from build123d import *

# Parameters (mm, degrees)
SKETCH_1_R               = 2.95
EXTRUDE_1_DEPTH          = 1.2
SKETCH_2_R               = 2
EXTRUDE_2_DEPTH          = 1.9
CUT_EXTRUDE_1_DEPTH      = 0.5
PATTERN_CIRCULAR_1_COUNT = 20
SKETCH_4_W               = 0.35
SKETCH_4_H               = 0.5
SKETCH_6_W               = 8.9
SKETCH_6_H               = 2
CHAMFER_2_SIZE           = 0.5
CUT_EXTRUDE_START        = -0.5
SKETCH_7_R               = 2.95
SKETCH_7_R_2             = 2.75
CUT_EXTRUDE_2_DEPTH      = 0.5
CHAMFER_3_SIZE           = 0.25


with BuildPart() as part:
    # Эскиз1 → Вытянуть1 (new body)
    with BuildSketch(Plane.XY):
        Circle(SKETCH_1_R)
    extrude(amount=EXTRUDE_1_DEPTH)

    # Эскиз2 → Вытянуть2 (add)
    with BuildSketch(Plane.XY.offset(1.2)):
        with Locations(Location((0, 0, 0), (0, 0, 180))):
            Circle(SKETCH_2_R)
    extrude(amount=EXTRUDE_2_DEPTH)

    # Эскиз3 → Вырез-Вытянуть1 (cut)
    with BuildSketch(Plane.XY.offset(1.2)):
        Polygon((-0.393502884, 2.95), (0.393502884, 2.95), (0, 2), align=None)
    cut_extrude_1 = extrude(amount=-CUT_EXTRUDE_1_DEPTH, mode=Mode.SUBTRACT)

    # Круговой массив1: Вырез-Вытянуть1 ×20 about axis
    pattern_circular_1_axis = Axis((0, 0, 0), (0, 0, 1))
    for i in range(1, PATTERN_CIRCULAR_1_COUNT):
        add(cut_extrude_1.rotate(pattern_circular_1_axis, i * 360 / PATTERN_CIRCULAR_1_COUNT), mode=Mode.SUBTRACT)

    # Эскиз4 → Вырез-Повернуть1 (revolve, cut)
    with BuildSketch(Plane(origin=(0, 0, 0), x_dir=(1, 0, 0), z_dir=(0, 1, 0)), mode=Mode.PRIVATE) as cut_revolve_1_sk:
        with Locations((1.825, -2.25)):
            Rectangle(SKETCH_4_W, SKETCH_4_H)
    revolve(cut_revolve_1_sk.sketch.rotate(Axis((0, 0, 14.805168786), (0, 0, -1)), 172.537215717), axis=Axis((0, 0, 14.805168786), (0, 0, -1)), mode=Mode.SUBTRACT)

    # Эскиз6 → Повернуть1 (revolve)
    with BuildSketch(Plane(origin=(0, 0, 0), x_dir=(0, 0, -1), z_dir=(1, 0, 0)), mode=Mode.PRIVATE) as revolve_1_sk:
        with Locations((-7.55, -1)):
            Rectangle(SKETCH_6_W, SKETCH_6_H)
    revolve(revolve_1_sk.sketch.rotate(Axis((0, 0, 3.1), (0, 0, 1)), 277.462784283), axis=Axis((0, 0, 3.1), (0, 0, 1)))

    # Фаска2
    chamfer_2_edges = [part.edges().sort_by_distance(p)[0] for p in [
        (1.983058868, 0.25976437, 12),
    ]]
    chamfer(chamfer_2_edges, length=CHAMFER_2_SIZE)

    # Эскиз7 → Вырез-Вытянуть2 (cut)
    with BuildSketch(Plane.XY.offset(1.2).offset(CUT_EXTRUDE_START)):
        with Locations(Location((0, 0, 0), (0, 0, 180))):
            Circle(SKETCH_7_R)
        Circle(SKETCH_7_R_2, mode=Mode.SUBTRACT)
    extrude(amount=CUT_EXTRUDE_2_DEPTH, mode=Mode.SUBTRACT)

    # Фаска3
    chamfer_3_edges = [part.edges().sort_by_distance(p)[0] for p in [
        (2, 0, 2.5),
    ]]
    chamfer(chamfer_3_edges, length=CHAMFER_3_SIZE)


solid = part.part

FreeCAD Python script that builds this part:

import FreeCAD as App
import Part
import Sketcher
from FreeCAD import Vector
Q = App.Units.Quantity


def edges_at(feature, points):
    """Names of the edges that pass closest to the given points."""
    edges = feature.Shape.Edges
    near = lambda p: min(range(len(edges)), key=lambda i: edges[i].distToShape(Part.Vertex(*p))[0])
    return sorted({f"Edge{near(p) + 1}" for p in points})


def add_polygon(sketch, points):
    """Adds a closed chain of lines whose ends are joined by coincident constraints."""
    first, n = sketch.GeometryCount, len(points)
    for a, b in zip(points, points[1:] + points[:1]):
        sketch.addGeometry(Part.LineSegment(App.Vector(*a, 0), App.Vector(*b, 0)), False)
    for i in range(n):
        sketch.addConstraint(Sketcher.Constraint("Coincident", first + i, 2, first + (i + 1) % n, 1))

doc = App.newDocument("Part")
body = doc.addObject("PartDesign::Body", "Body")

sketch1 = body.newObject("Sketcher::SketchObject", "Sketch")
sketch1.AttachmentSupport = (doc.getObject("XY_Plane"), [""])
sketch1.MapMode = "FlatFace"
sketch1.addGeometry(Part.Circle(Vector(0, 0, 0), Vector(0, 0, 1), 2.95), False)
sketch1.addConstraint(Sketcher.Constraint("Coincident", 0, 3, -1, 1))
sketch1.addConstraint(Sketcher.Constraint("Diameter", 0, 5.9))
pad1 = body.newObject("PartDesign::Pad", "Pad")
pad1.Profile = sketch1
pad1.Length = 1.2

sketch2 = body.newObject("Sketcher::SketchObject", "Sketch001")
sketch2.AttachmentSupport = (doc.getObject("XY_Plane"), [""])
sketch2.MapMode = "FlatFace"
sketch2.AttachmentOffset = App.Placement(Vector(0, 0, 1.2), App.Rotation())
sketch2.addGeometry(Part.Circle(Vector(0, 0, 0), Vector(0, 0, 1), 2), False)
sketch2.addConstraint(Sketcher.Constraint("Coincident", 0, 3, -1, 1))
sketch2.addConstraint(Sketcher.Constraint("Diameter", 0, 4.0))
pad2 = body.newObject("PartDesign::Pad", "Pad001")
pad2.Profile = sketch2
pad2.Length = 1.9

sketch3 = body.newObject("Sketcher::SketchObject", "Sketch002")
sketch3.AttachmentSupport = (doc.getObject("XY_Plane"), [""])
sketch3.MapMode = "FlatFace"
sketch3.AttachmentOffset = App.Placement(Vector(0, 0, 1.2), App.Rotation())
add_polygon(sketch3, [(0.393503, 2.95), (-0.393503, 2.95), (0, 2)])
sketch3.addConstraint(Sketcher.Constraint("Horizontal", 0))
sketch3.addConstraint(Sketcher.Constraint("PointOnObject", 1, 2, -2))
sketch3.addConstraint(Sketcher.Constraint("Equal", 1, 2))
sketch3.addConstraint(Sketcher.Constraint("DistanceY", -1, 1, 1, 2, 2.0))
sketch3.addConstraint(Sketcher.Constraint("Angle", 1, Q("-67.5 deg")))
sketch3.addConstraint(Sketcher.Constraint("DistanceY", -1, 1, 0, 2, 2.95))
pocket1 = body.newObject("PartDesign::Pocket", "Pocket")
pocket1.Profile = sketch3
pocket1.Length = 0.5
doc.recompute()

polarpattern = body.newObject("PartDesign::PolarPattern", "PolarPattern")
polarpattern.Originals = [pocket1]
polarpattern.Axis = (doc.getObject("Z_Axis"), [""])
polarpattern.Angle = 360
polarpattern.Occurrences = 20
body.Tip = polarpattern

sketch4 = body.newObject("Sketcher::SketchObject", "Sketch003")
sketch4.AttachmentSupport = (doc.getObject("XZ_Plane"), [""])
sketch4.MapMode = "FlatFace"
add_polygon(sketch4, [(1.65, 2), (1.65, 2.5), (2, 2.5), (2, 2)])
sketch4.addConstraint(Sketcher.Constraint("Vertical", 0))
sketch4.addConstraint(Sketcher.Constraint("Horizontal", 1))
sketch4.addConstraint(Sketcher.Constraint("Vertical", 2))
sketch4.addConstraint(Sketcher.Constraint("Horizontal", 3))
sketch4.addConstraint(Sketcher.Constraint("DistanceY", 0, 1, 0, 2, 0.5))
sketch4.addConstraint(Sketcher.Constraint("DistanceX", -1, 1, 1, 2, 2.0))
sketch4.addConstraint(Sketcher.Constraint("DistanceY", -1, 1, 2, 2, 2.0))
sketch4.addConstraint(Sketcher.Constraint("DistanceX", 1, 1, 1, 2, 0.35))
groove = body.newObject("PartDesign::Groove", "Groove")
groove.Profile = sketch4
groove.ReferenceAxis = (sketch4, ["V_Axis"])
groove.Angle = 360

sketch5 = body.newObject("Sketcher::SketchObject", "Sketch004")
sketch5.AttachmentSupport = (doc.getObject("YZ_Plane"), [""])
sketch5.MapMode = "FlatFace"
add_polygon(sketch5, [(0, 12), (-2, 12), (-2, 3.1), (0, 3.1)])
sketch5.addConstraint(Sketcher.Constraint("Horizontal", 0))
sketch5.addConstraint(Sketcher.Constraint("Vertical", 1))
sketch5.addConstraint(Sketcher.Constraint("Horizontal", 2))
sketch5.addConstraint(Sketcher.Constraint("Vertical", 3))
sketch5.addConstraint(Sketcher.Constraint("PointOnObject", 2, 2, -2))
sketch5.addConstraint(Sketcher.Constraint("DistanceX", 0, 2, 0, 1, 2.0))
sketch5.addConstraint(Sketcher.Constraint("DistanceY", 1, 2, 1, 1, 8.9))
sketch5.addConstraint(Sketcher.Constraint("DistanceY", -1, 1, 0, 2, 12.0))
revolution = body.newObject("PartDesign::Revolution", "Revolution")
revolution.Profile = sketch5
revolution.ReferenceAxis = (sketch5, ["V_Axis"])
revolution.Angle = 360
doc.recompute()

chamfer = body.newObject("PartDesign::Chamfer", "Chamfer")
chamfer.Base = (revolution, edges_at(revolution, [(1.983, 0.26, 12)]))
chamfer.Size = 0.5

sketch6 = body.newObject("Sketcher::SketchObject", "Sketch005")
sketch6.AttachmentSupport = (doc.getObject("XY_Plane"), [""])
sketch6.MapMode = "FlatFace"
sketch6.AttachmentOffset = App.Placement(Vector(0, 0, 0.7), App.Rotation())
sketch6.addGeometry(Part.Circle(Vector(0, 0, 0), Vector(0, 0, 1), 2.95), False)
sketch6.addGeometry(Part.Circle(Vector(0, 0, 0), Vector(0, 0, 1), 2.75), False)
sketch6.addConstraint(Sketcher.Constraint("Coincident", 0, 3, -1, 1))
sketch6.addConstraint(Sketcher.Constraint("Coincident", 1, 3, -1, 1))
sketch6.addConstraint(Sketcher.Constraint("Diameter", 0, 5.9))
sketch6.addConstraint(Sketcher.Constraint("Diameter", 1, 5.5))
pocket2 = body.newObject("PartDesign::Pocket", "Pocket001")
pocket2.Profile = sketch6
pocket2.Length = 0.5
pocket2.Reversed = True
doc.recompute()

chamfer2 = body.newObject("PartDesign::Chamfer", "Chamfer001")
chamfer2.Base = (pocket2, edges_at(pocket2, [(2, 0, 2.5)]))
chamfer2.Size = 0.25

doc.recompute()
